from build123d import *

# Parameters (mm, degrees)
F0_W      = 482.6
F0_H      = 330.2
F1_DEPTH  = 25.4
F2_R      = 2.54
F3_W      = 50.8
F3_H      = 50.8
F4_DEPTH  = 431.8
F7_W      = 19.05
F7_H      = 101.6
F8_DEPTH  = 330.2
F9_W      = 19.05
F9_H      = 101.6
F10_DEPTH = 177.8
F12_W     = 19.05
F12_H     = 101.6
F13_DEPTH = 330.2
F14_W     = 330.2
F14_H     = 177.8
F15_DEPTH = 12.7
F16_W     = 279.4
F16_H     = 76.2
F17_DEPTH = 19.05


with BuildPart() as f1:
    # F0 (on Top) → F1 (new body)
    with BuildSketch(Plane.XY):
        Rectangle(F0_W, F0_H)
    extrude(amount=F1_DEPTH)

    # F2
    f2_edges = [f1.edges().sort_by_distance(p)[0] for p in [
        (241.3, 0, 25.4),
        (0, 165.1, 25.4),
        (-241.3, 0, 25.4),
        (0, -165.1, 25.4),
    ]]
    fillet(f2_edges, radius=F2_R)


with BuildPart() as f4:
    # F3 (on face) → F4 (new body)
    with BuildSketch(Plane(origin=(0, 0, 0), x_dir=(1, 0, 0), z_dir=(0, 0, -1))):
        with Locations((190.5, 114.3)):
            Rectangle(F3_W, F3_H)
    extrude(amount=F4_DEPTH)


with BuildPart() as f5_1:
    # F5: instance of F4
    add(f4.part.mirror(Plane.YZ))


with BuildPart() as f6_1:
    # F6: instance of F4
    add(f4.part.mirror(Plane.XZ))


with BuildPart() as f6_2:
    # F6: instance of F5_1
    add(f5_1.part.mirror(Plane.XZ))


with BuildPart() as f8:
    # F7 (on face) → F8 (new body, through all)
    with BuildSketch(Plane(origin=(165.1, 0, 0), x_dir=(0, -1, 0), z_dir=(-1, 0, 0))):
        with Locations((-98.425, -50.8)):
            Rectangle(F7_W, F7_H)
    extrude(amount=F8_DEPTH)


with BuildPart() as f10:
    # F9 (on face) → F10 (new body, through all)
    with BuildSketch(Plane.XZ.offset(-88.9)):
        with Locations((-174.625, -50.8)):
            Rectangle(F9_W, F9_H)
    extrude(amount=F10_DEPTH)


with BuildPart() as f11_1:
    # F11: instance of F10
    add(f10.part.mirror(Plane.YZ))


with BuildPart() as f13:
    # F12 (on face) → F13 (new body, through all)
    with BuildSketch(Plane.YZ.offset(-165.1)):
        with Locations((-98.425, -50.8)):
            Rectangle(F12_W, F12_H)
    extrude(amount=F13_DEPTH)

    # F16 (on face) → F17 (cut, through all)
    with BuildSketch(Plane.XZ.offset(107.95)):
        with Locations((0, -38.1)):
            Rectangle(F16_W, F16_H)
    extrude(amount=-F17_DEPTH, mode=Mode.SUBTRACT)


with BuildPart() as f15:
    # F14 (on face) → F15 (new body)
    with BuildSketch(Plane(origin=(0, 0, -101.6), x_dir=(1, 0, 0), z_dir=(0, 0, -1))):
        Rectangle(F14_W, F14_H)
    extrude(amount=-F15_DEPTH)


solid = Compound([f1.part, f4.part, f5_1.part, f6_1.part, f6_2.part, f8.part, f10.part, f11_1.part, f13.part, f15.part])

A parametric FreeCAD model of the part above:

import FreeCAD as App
import Part
import Sketcher

V = App.Vector
Q = App.Units.Quantity


def edges_at(feature, points):
    """Names of the edges that pass closest to the given points."""
    edges = feature.Shape.Edges
    near = lambda p: min(range(len(edges)), key=lambda i: edges[i].distToShape(Part.Vertex(*p))[0])
    return sorted({f"Edge{near(p) + 1}" for p in points})

doc = App.newDocument("Part")
params = doc.addObject("Spreadsheet::Sheet", "Params")
for row, (alias, value) in enumerate([
    ("sketch1_width", "19 in"),
    ("sketch1_height", "13 in"),
    ("pad1_length", "1 in"),
    ("fillet_radius", "0.1 in"),
    ("sketch2_width", "2 in"),
    ("pad2_length", "17 in"),
    ("sketch3_height", "4 in"),
    ("sketch3_width", "0.75 in"),
    ("pad3_length", "13 in"),
    ("sketch4_height", "4 in"),
    ("sketch4_width", "0.75 in"),
    ("pad4_length", "7 in"),
    ("sketch5_height", "4 in"),
    ("sketch5_width", "0.75 in"),
    ("pad5_length", "13 in"),
    ("sketch6_width", "11 in"),
    ("sketch6_height", "3 in"),
    ("sketch7_width", "13 in"),
    ("sketch7_height", "7 in"),
    ("pad6_length", "0.5 in"),
], start=1):
    params.set(f"A{row}", alias)
    params.set(f"B{row}", "=" + value)
    params.setAlias(f"B{row}", alias)

body = doc.addObject("PartDesign::Body", "Body")

# Sketch on XY plane
sketch1 = body.newObject("Sketcher::SketchObject", "Sketch")
sketch1.AttachmentSupport = (doc.getObject("XY_Plane"), [""])
sketch1.MapMode = "FlatFace"
sketch1.addGeometry(Part.LineSegment(V(-241, 165, 0), V(-241, -165, 0)), False)
sketch1.addGeometry(Part.LineSegment(V(-241, -165, 0), V(241, -165, 0)), False)
sketch1.addGeometry(Part.LineSegment(V(241, -165, 0), V(241, 165, 0)), False)
sketch1.addGeometry(Part.LineSegment(V(241, 165, 0), V(-241, 165, 0)), False)
sketch1.addConstraint(Sketcher.Constraint("Coincident", 0, 2, 1, 1))
sketch1.addConstraint(Sketcher.Constraint("Coincident", 1, 2, 2, 1))
sketch1.addConstraint(Sketcher.Constraint("Coincident", 2, 2, 3, 1))
sketch1.addConstraint(Sketcher.Constraint("Coincident", 3, 2, 0, 1))
sketch1.addConstraint(Sketcher.Constraint("Vertical", 0))
sketch1.addConstraint(Sketcher.Constraint("Horizontal", 1))
sketch1.addConstraint(Sketcher.Constraint("Vertical", 2))
sketch1.addConstraint(Sketcher.Constraint("Horizontal", 3))
sketch1.addConstraint(Sketcher.Constraint("Symmetric", 0, 2, 2, 2, -1, 1))
sketch1.addConstraint(Sketcher.Constraint("DistanceX", 1, 1, 1, 2, Q("19 in")))
sketch1.addConstraint(Sketcher.Constraint("DistanceY", 0, 2, 0, 1, Q("13 in")))
sketch1.setExpression("Constraints[9]", "Params.sketch1_width")
sketch1.setExpression("Constraints[10]", "Params.sketch1_height")
pad1 = body.newObject("PartDesign::Pad", "Pad")
pad1.Profile = sketch1
pad1.setExpression("Length", "Params.pad1_length")
doc.recompute()

fillet = body.newObject("PartDesign::Fillet", "Fillet")
fillet.Base = (pad1, edges_at(pad1, [
    (241.3, 0, 25.4),
    (0, 165.1, 25.4),
    (-241.3, 0, 25.4),
    (0, -165.1, 25.4),
]))
fillet.setExpression("Radius", "Params.fillet_radius")
body2 = doc.addObject("PartDesign::Body", "Body001")

# Sketch on XY plane
sketch2 = body2.newObject("Sketcher::SketchObject", "Sketch001")
sketch2.AttachmentSupport = (doc.getObject("XY_Plane001"), [""])
sketch2.MapMode = "FlatFace"
sketch2.addGeometry(Part.LineSegment(V(165, -140, 0), V(165, -89, 0)), False)
sketch2.addGeometry(Part.LineSegment(V(165, -89, 0), V(216, -89, 0)), False)
sketch2.addGeometry(Part.LineSegment(V(216, -89, 0), V(216, -140, 0)), False)
sketch2.addGeometry(Part.LineSegment(V(216, -140, 0), V(165, -140, 0)), False)
sketch2.addConstraint(Sketcher.Constraint("Coincident", 0, 2, 1, 1))
sketch2.addConstraint(Sketcher.Constraint("Coincident", 1, 2, 2, 1))
sketch2.addConstraint(Sketcher.Constraint("Coincident", 2, 2, 3, 1))
sketch2.addConstraint(Sketcher.Constraint("Coincident", 3, 2, 0, 1))
sketch2.addConstraint(Sketcher.Constraint("Vertical", 0))
sketch2.addConstraint(Sketcher.Constraint("Horizontal", 1))
sketch2.addConstraint(Sketcher.Constraint("Vertical", 2))
sketch2.addConstraint(Sketcher.Constraint("Horizontal", 3))
sketch2.addConstraint(Sketcher.Constraint("Equal", 3, 0))
sketch2.addConstraint(Sketcher.Constraint("DistanceX", 1, 1, 1, 2, Q("2 in")))
sketch2.addConstraint(Sketcher.Constraint("DistanceX", -1, 1, 0, 2, Q("6.5 in")))
sketch2.addConstraint(Sketcher.Constraint("DistanceY", 0, 2, -1, 1, Q("3.5 in")))
sketch2.setExpression("Constraints[9]", "Params.sketch2_width")
pad2 = body2.newObject("PartDesign::Pad", "Pad001")
pad2.Profile = sketch2
pad2.setExpression("Length", "Params.pad2_length")
pad2.Reversed = True
body3 = doc.addObject("PartDesign::Body", "Body002")
doc.recompute()

mirroring = doc.addObject("Part::Mirroring", "Mirroring")
mirroring.Source = body2
mirroring.Base = V(0, 0, 0)
mirroring.Normal = V(1, 0, 0)
body3.BaseFeature = mirroring
doc.recompute()
body4 = doc.addObject("PartDesign::Body", "Body003")
doc.recompute()

mirroring2 = doc.addObject("Part::Mirroring", "Mirroring001")
mirroring2.Source = body2
mirroring2.Base = V(0, 0, 0)
mirroring2.Normal = V(0, -1, 0)
body4.BaseFeature = mirroring2
doc.recompute()
body5 = doc.addObject("PartDesign::Body", "Body004")
doc.recompute()

mirroring3 = doc.addObject("Part::Mirroring", "Mirroring002")
mirroring3.Source = body3
mirroring3.Base = V(0, 0, 0)
mirroring3.Normal = V(0, -1, 0)
body5.BaseFeature = mirroring3
doc.recompute()
body6 = doc.addObject("PartDesign::Body", "Body005")

# Sketch on YZ plane
sketch3 = body6.newObject("Sketcher::SketchObject", "Sketch002")
sketch3.AttachmentSupport = (doc.getObject("YZ_Plane005"), [""])
sketch3.MapMode = "FlatFace"
sketch3.AttachmentOffset = App.Placement(V(0, 0, 6.5 * 25.4), App.Rotation())
sketch3.addGeometry(Part.LineSegment(V(108, 0, 0), V(108, -102, 0)), False)
sketch3.addGeometry(Part.LineSegment(V(108, -102, 0), V(89, -102, 0)), False)
sketch3.addGeometry(Part.LineSegment(V(89, -102, 0), V(89, 0, 0)), False)
sketch3.addGeometry(Part.LineSegment(V(89, 0, 0), V(108, 0, 0)), False)
sketch3.addConstraint(Sketcher.Constraint("Coincident", 0, 2, 1, 1))
sketch3.addConstraint(Sketcher.Constraint("Coincident", 1, 2, 2, 1))
sketch3.addConstraint(Sketcher.Constraint("Coincident", 2, 2, 3, 1))
sketch3.addConstraint(Sketcher.Constraint("Coincident", 3, 2, 0, 1))
sketch3.addConstraint(Sketcher.Constraint("Vertical", 0))
sketch3.addConstraint(Sketcher.Constraint("Horizontal", 1))
sketch3.addConstraint(Sketcher.Constraint("Vertical", 2))
sketch3.addConstraint(Sketcher.Constraint("Horizontal", 3))
sketch3.addConstraint(Sketcher.Constraint("PointOnObject", 2, 2, -1))
sketch3.addConstraint(Sketcher.Constraint("DistanceY", 0, 2, 0, 1, Q("4 in")))
sketch3.addConstraint(Sketcher.Constraint("DistanceX", 1, 2, 1, 1, Q("0.75 in")))
sketch3.addConstraint(Sketcher.Constraint("DistanceX", -1, 1, 1, 2, Q("3.5 in")))
sketch3.setExpression("Constraints[9]", "Params.sketch3_height")
sketch3.setExpression("Constraints[10]", "Params.sketch3_width")
pad3 = body6.newObject("PartDesign::Pad", "Pad002")
pad3.Profile = sketch3
pad3.setExpression("Length", "Params.pad3_length")
pad3.Reversed = True
body7 = doc.addObject("PartDesign::Body", "Body006")

# Sketch on XZ plane
sketch4 = body7.newObject("Sketcher::SketchObject", "Sketch003")
sketch4.AttachmentSupport = (doc.getObject("XZ_Plane006"), [""])
sketch4.MapMode = "FlatFace"
sketch4.AttachmentOffset = App.Placement(V(0, 0, -3.5 * 25.4), App.Rotation())
sketch4.addGeometry(Part.LineSegment(V(-184, 0, 0), V(-184, -102, 0)), False)
sketch4.addGeometry(Part.LineSegment(V(-184, -102, 0), V(-165, -102, 0)), False)
sketch4.addGeometry(Part.LineSegment(V(-165, -102, 0), V(-165, 0, 0)), False)
sketch4.addGeometry(Part.LineSegment(V(-165, 0, 0), V(-184, 0, 0)), False)
sketch4.addConstraint(Sketcher.Constraint("Coincident", 0, 2, 1, 1))
sketch4.addConstraint(Sketcher.Constraint("Coincident", 1, 2, 2, 1))
sketch4.addConstraint(Sketcher.Constraint("Coincident", 2, 2, 3, 1))
sketch4.addConstraint(Sketcher.Constraint("Coincident", 3, 2, 0, 1))
sketch4.addConstraint(Sketcher.Constraint("Vertical", 0))
sketch4.addConstraint(Sketcher.Constraint("Horizontal", 1))
sketch4.addConstraint(Sketcher.Constraint("Vertical", 2))
sketch4.addConstraint(Sketcher.Constraint("Horizontal", 3))
sketch4.addConstraint(Sketcher.Constraint("PointOnObject", 2, 2, -1))
sketch4.addConstraint(Sketcher.Constraint("DistanceY", 0, 2, 0, 1, Q("4 in")))
sketch4.addConstraint(Sketcher.Constraint("DistanceX", 1, 1, 1, 2, Q("0.75 in")))
sketch4.addConstraint(Sketcher.Constraint("DistanceX", 1, 2, -1, 1, Q("6.5 in")))
sketch4.setExpression("Constraints[9]", "Params.sketch4_height")
sketch4.setExpression("Constraints[10]", "Params.sketch4_width")
pad4 = body7.newObject("PartDesign::Pad", "Pad003")
pad4.Profile = sketch4
pad4.setExpression("Length", "Params.pad4_length")
body8 = doc.addObject("PartDesign::Body", "Body007")
doc.recompute()

mirroring4 = doc.addObject("Part::Mirroring", "Mirroring003")
mirroring4.Source = body7
mirroring4.Base = V(0, 0, 0)
mirroring4.Normal = V(1, 0, 0)
body8.BaseFeature = mirroring4
doc.recompute()
body9 = doc.addObject("PartDesign::Body", "Body008")

# Sketch on YZ plane
sketch5 = body9.newObject("Sketcher::SketchObject", "Sketch004")
sketch5.AttachmentSupport = (doc.getObject("YZ_Plane008"), [""])
sketch5.MapMode = "FlatFace"
sketch5.AttachmentOffset = App.Placement(V(0, 0, -6.5 * 25.4), App.Rotation())
sketch5.addGeometry(Part.LineSegment(V(-108, 0, 0), V(-108, -102, 0)), False)
sketch5.addGeometry(Part.LineSegment(V(-108, -102, 0), V(-89, -102, 0)), False)
sketch5.addGeometry(Part.LineSegment(V(-89, -102, 0), V(-89, 0, 0)), False)
sketch5.addGeometry(Part.LineSegment(V(-89, 0, 0), V(-108, 0, 0)), False)
sketch5.addConstraint(Sketcher.Constraint("Coincident", 0, 2, 1, 1))
sketch5.addConstraint(Sketcher.Constraint("Coincident", 1, 2, 2, 1))
sketch5.addConstraint(Sketcher.Constraint("Coincident", 2, 2, 3, 1))
sketch5.addConstraint(Sketcher.Constraint("Coincident", 3, 2, 0, 1))
sketch5.addConstraint(Sketcher.Constraint("Vertical", 0))
sketch5.addConstraint(Sketcher.Constraint("Horizontal", 1))
sketch5.addConstraint(Sketcher.Constraint("Vertical", 2))
sketch5.addConstraint(Sketcher.Constraint("Horizontal", 3))
sketch5.addConstraint(Sketcher.Constraint("PointOnObject", 2, 2, -1))
sketch5.addConstraint(Sketcher.Constraint("DistanceY", 0, 2, 0, 1, Q("4 in")))
sketch5.addConstraint(Sketcher.Constraint("DistanceX", 1, 1, 1, 2, Q("0.75 in")))
sketch5.addConstraint(Sketcher.Constraint("DistanceX", 1, 2, -1, 1, Q("3.5 in")))
sketch5.setExpression("Constraints[9]", "Params.sketch5_height")
sketch5.setExpression("Constraints[10]", "Params.sketch5_width")
pad5 = body9.newObject("PartDesign::Pad", "Pad004")
pad5.Profile = sketch5
pad5.setExpression("Length", "Params.pad5_length")

# Sketch on XZ plane
sketch6 = body9.newObject("Sketcher::SketchObject", "Sketch005")
sketch6.AttachmentSupport = (doc.getObject("XZ_Plane008"), [""])
sketch6.MapMode = "FlatFace"
sketch6.AttachmentOffset = App.Placement(V(0, 0, 4.25 * 25.4), App.Rotation())
sketch6.addGeometry(Part.LineSegment(V(-140, 0, 0), V(-140, -76, 0)), False)
sketch6.addGeometry(Part.LineSegment(V(-140, -76, 0), V(140, -76, 0)), False)
sketch6.addGeometry(Part.LineSegment(V(140, -76, 0), V(140, 0, 0)), False)
sketch6.addGeometry(Part.LineSegment(V(140, 0, 0), V(-140, 0, 0)), False)
sketch6.addConstraint(Sketcher.Constraint("Coincident", 0, 2, 1, 1))
sketch6.addConstraint(Sketcher.Constraint("Coincident", 1, 2, 2, 1))
sketch6.addConstraint(Sketcher.Constraint("Coincident", 2, 2, 3, 1))
sketch6.addConstraint(Sketcher.Constraint("Coincident", 3, 2, 0, 1))
sketch6.addConstraint(Sketcher.Constraint("Vertical", 0))
sketch6.addConstraint(Sketcher.Constraint("Horizontal", 1))
sketch6.addConstraint(Sketcher.Constraint("Vertical", 2))
sketch6.addConstraint(Sketcher.Constraint("Horizontal", 3))
sketch6.addConstraint(Sketcher.Constraint("Symmetric", 2, 2, 3, 2, -1, 1))
sketch6.addConstraint(Sketcher.Constraint("DistanceX", 1, 1, 1, 2, Q("11 in")))
sketch6.addConstraint(Sketcher.Constraint("DistanceY", 0, 2, 0, 1, Q("3 in")))
sketch6.setExpression("Constraints[9]", "Params.sketch6_width")
sketch6.setExpression("Constraints[10]", "Params.sketch6_height")
pocket1 = body9.newObject("PartDesign::Pocket", "Pocket")
pocket1.Profile = sketch6
pocket1.Type = "ThroughAll"
body10 = doc.addObject("PartDesign::Body", "Body009")

# Sketch on XY plane
sketch7 = body10.newObject("Sketcher::SketchObject", "Sketch006")
sketch7.AttachmentSupport = (doc.getObject("XY_Plane009"), [""])
sketch7.MapMode = "FlatFace"
sketch7.AttachmentOffset = App.Placement(V(0, 0, -4 * 25.4), App.Rotation())
sketch7.addGeometry(Part.LineSegment(V(-165, -89, 0), V(-165, 89, 0)), False)
sketch7.addGeometry(Part.LineSegment(V(-165, 89, 0), V(165, 89, 0)), False)
sketch7.addGeometry(Part.LineSegment(V(165, 89, 0), V(165, -89, 0)), False)
sketch7.addGeometry(Part.LineSegment(V(165, -89, 0), V(-165, -89, 0)), False)
sketch7.addConstraint(Sketcher.Constraint("Coincident", 0, 2, 1, 1))
sketch7.addConstraint(Sketcher.Constraint("Coincident", 1, 2, 2, 1))
sketch7.addConstraint(Sketcher.Constraint("Coincident", 2, 2, 3, 1))
sketch7.addConstraint(Sketcher.Constraint("Coincident", 3, 2, 0, 1))
sketch7.addConstraint(Sketcher.Constraint("Vertical", 0))
sketch7.addConstraint(Sketcher.Constraint("Horizontal", 1))
sketch7.addConstraint(Sketcher.Constraint("Vertical", 2))
sketch7.addConstraint(Sketcher.Constraint("Horizontal", 3))
sketch7.addConstraint(Sketcher.Constraint("Symmetric", 0, 2, 2, 2, -1, 1))
sketch7.addConstraint(Sketcher.Constraint("DistanceX", 1, 1, 1, 2, Q("13 in")))
sketch7.addConstraint(Sketcher.Constraint("DistanceY", 0, 1, 0, 2, Q("7 in")))
sketch7.setExpression("Constraints[9]", "Params.sketch7_width")
sketch7.setExpression("Constraints[10]", "Params.sketch7_height")
pad6 = body10.newObject("PartDesign::Pad", "Pad005")
pad6.Profile = sketch7
pad6.setExpression("Length", "Params.pad6_length")
mirroring.Visibility = False
mirroring2.Visibility = False
mirroring3.Visibility = False
mirroring4.Visibility = False

doc.recompute()
